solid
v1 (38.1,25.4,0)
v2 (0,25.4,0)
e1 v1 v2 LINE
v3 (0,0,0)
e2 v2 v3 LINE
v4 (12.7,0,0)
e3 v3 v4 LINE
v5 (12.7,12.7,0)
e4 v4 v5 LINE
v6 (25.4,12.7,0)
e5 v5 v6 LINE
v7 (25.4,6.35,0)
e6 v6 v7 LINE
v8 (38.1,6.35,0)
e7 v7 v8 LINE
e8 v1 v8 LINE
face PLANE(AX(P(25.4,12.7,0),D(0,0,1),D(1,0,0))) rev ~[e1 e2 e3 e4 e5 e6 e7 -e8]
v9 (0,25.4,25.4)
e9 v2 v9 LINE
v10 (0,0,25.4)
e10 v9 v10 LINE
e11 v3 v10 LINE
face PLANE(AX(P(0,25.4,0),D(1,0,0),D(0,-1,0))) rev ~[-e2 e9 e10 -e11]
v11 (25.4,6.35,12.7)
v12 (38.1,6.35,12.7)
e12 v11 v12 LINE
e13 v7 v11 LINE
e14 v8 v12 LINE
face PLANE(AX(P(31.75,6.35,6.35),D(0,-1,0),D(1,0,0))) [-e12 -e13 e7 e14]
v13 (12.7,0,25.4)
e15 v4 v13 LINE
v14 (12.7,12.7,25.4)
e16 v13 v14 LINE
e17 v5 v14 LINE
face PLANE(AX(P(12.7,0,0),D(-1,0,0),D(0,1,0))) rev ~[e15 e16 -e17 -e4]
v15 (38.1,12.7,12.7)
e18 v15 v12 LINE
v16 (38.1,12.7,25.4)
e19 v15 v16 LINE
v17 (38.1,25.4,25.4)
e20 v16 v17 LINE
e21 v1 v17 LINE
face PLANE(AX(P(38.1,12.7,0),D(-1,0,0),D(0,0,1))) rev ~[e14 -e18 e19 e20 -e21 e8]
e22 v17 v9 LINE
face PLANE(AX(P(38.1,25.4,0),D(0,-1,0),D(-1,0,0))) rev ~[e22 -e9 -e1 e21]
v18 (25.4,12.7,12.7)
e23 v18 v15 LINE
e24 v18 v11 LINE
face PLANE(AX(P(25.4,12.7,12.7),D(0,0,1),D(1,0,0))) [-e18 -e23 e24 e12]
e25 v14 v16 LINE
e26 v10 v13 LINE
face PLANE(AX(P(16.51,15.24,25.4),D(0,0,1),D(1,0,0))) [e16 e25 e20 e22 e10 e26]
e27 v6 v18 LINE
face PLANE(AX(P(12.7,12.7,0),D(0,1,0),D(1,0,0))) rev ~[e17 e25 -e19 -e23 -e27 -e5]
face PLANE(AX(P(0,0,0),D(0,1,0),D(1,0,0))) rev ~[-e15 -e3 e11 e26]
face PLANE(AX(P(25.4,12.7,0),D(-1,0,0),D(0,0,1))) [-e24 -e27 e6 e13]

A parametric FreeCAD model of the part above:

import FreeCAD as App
import Part
import Sketcher
Q = App.Units.Quantity

doc = App.newDocument("Part")
body = doc.addObject("PartDesign::Body", "Body")

sketch1 = body.newObject("Sketcher::SketchObject", "Sketch")
sketch1.AttachmentSupport = (doc.getObject("XY_Plane"), [""])
sketch1.MapMode = "FlatFace"
sketch1.addGeometry(Part.LineSegment(App.Vector(0, 25.4, 0), App.Vector(0, 0, 0)), False)
sketch1.addGeometry(Part.LineSegment(App.Vector(0, 0, 0), App.Vector(12.7, 0, 0)), False)
sketch1.addGeometry(Part.LineSegment(App.Vector(12.7, 0, 0), App.Vector(12.7, 12.7, 0)), False)
sketch1.addGeometry(Part.LineSegment(App.Vector(12.7, 12.7, 0), App.Vector(38.1, 12.7, 0)), False)
sketch1.addGeometry(Part.LineSegment(App.Vector(38.1, 12.7, 0), App.Vector(38.1, 25.4, 0)), False)
sketch1.addGeometry(Part.LineSegment(App.Vector(38.1, 25.4, 0), App.Vector(0, 25.4, 0)), False)
sketch1.addConstraint(Sketcher.Constraint("Coincident", 0, 2, 1, 1))
sketch1.addConstraint(Sketcher.Constraint("Coincident", 1, 2, 2, 1))
sketch1.addConstraint(Sketcher.Constraint("Coincident", 2, 2, 3, 1))
sketch1.addConstraint(Sketcher.Constraint("Coincident", 3, 2, 4, 1))
sketch1.addConstraint(Sketcher.Constraint("Coincident", 4, 2, 5, 1))
sketch1.addConstraint(Sketcher.Constraint("Coincident", 5, 2, 0, 1))
sketch1.addConstraint(Sketcher.Constraint("Vertical", 0))
sketch1.addConstraint(Sketcher.Constraint("Horizontal", 1))
sketch1.addConstraint(Sketcher.Constraint("Vertical", 2))
sketch1.addConstraint(Sketcher.Constraint("Horizontal", 3))
sketch1.addConstraint(Sketcher.Constraint("Vertical", 4))
sketch1.addConstraint(Sketcher.Constraint("Horizontal", 5))
sketch1.addConstraint(Sketcher.Constraint("Coincident", 0, 2, -1, 1))
sketch1.addConstraint(Sketcher.Constraint("Equal", 3, 0))
sketch1.addConstraint(Sketcher.Constraint("Equal", 1, 2))
sketch1.addConstraint(Sketcher.Constraint("Equal", 2, 4))
sketch1.addConstraint(Sketcher.Constraint("DistanceX", 3, 1, 3, 2, Q("1 in")))
pad1 = body.newObject("PartDesign::Pad", "Pad")
pad1.Profile = sketch1
pad1.Length = Q("1 in")

sketch2 = body.newObject("Sketcher::SketchObject", "Sketch001")
sketch2.AttachmentSupport = (doc.getObject("XZ_Plane"), [""])
sketch2.MapMode = "FlatFace"
sketch2.AttachmentOffset = App.Placement(App.Vector(0, 0, -0.5 * 25.4), App.Rotation())
sketch2.addGeometry(Part.LineSegment(App.Vector(25.4, 12.7, 0), App.Vector(25.4, 0, 0)), False)
sketch2.addGeometry(Part.LineSegment(App.Vector(25.4, 0, 0), App.Vector(38.1, 0, 0)), False)
sketch2.addGeometry(Part.LineSegment(App.Vector(38.1, 0, 0), App.Vector(38.1, 12.7, 0)), False)
sketch2.addGeometry(Part.LineSegment(App.Vector(38.1, 12.7, 0), App.Vector(25.4, 12.7, 0)), False)
sketch2.addConstraint(Sketcher.Constraint("Coincident", 0, 2, 1, 1))
sketch2.addConstraint(Sketcher.Constraint("Coincident", 1, 2, 2, 1))
sketch2.addConstraint(Sketcher.Constraint("Coincident", 2, 2, 3, 1))
sketch2.addConstraint(Sketcher.Constraint("Coincident", 3, 2, 0, 1))
sketch2.addConstraint(Sketcher.Constraint("Vertical", 0))
sketch2.addConstraint(Sketcher.Constraint("Horizontal", 1))
sketch2.addConstraint(Sketcher.Constraint("Vertical", 2))
sketch2.addConstraint(Sketcher.Constraint("Horizontal", 3))
sketch2.addConstraint(Sketcher.Constraint("PointOnObject", 0, 2, -1))
sketch2.addConstraint(Sketcher.Constraint("Equal", 3, 0))
sketch2.addConstraint(Sketcher.Constraint("DistanceX", 1, 1, 1, 2, Q("0.5 in")))
sketch2.addConstraint(Sketcher.Constraint("DistanceX", -1, 1, 0, 2, Q("1 in")))
pad2 = body.newObject("PartDesign::Pad", "Pad001")
pad2.Profile = sketch2
pad2.Length = Q("0.25 in")

doc.recompute()
